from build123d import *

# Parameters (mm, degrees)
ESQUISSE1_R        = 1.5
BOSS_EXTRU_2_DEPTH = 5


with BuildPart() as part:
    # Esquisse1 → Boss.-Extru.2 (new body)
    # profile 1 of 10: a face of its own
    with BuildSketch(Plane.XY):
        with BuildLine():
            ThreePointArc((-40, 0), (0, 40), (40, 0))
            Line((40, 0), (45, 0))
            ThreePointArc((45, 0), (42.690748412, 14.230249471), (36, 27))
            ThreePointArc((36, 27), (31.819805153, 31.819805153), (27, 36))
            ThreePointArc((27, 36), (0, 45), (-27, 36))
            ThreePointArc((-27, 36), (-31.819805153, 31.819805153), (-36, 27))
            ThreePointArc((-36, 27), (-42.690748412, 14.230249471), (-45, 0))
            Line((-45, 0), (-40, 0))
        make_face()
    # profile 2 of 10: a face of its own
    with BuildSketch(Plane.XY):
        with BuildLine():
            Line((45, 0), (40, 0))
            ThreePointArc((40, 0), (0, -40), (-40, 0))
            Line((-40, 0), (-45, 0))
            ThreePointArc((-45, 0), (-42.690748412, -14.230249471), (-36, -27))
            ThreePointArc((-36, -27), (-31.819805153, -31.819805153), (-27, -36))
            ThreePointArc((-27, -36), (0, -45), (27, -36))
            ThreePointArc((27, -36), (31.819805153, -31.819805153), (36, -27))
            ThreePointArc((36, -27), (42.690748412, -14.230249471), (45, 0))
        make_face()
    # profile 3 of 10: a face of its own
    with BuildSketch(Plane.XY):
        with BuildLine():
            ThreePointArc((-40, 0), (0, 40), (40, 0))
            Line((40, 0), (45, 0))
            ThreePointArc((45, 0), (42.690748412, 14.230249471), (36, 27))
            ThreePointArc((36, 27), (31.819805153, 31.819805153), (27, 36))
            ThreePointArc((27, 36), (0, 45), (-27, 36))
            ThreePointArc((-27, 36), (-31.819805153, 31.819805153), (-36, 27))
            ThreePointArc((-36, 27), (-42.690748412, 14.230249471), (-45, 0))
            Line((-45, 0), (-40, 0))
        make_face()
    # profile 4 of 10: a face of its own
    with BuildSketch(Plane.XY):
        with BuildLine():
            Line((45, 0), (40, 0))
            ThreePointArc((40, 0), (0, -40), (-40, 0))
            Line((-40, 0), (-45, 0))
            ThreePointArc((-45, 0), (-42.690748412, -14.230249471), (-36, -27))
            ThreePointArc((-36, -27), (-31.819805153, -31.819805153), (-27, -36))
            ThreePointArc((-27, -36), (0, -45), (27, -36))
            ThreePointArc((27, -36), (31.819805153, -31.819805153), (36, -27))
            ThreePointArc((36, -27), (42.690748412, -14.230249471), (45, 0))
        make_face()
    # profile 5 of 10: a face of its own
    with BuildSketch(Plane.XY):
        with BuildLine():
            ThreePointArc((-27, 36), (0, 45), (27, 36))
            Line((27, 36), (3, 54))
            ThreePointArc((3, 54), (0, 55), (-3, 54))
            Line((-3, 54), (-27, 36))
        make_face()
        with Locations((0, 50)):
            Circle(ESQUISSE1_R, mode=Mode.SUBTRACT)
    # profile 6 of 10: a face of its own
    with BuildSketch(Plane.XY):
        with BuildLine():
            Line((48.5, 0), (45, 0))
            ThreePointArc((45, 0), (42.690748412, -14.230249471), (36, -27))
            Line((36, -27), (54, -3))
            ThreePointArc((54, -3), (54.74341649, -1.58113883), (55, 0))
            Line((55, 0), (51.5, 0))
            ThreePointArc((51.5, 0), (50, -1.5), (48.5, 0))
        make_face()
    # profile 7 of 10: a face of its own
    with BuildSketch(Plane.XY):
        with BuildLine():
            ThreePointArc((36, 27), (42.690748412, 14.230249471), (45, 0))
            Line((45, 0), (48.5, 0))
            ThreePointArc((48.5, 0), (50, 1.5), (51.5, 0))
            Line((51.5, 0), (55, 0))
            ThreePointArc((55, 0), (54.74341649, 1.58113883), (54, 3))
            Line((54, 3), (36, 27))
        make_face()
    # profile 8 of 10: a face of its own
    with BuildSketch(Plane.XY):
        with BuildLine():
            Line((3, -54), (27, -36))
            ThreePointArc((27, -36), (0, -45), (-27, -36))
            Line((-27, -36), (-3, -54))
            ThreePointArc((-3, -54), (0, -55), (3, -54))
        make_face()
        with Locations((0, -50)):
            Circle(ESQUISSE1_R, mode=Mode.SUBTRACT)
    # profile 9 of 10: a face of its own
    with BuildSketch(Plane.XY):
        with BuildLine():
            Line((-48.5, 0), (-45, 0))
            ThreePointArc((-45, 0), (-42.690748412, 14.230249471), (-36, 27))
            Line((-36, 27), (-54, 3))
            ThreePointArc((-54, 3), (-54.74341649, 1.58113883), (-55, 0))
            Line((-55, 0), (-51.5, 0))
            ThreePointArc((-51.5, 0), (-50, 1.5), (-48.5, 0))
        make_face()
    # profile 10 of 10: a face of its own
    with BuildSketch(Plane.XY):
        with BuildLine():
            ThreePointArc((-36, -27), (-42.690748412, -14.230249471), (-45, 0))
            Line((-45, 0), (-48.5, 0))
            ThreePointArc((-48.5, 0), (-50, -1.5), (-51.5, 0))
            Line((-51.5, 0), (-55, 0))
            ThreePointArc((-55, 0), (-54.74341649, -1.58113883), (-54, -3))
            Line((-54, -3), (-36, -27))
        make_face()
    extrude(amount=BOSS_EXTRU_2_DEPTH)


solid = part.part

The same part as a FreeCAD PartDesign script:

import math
import FreeCAD as App
import Part
import Sketcher
from FreeCAD import Vector

doc = App.newDocument("Part")
body = doc.addObject("PartDesign::Body", "Body")

# Sketch on XY plane
sketch1 = body.newObject("Sketcher::SketchObject", "Sketch")
sketch1.AttachmentSupport = (doc.getObject("XY_Plane"), [""])
sketch1.MapMode = "FlatFace"
sketch1.addGeometry([
    Part.ArcOfCircle(Part.Circle(Vector(0, 0, 0), Vector(0, 0, 1), 45), math.radians(36.87), math.radians(53.13)),  # 0
    Part.LineSegment(Vector(27, 36, 0), Vector(3, 54, 0)),  # 1
    Part.ArcOfCircle(Part.Circle(Vector(0, 50, 0), Vector(0, 0, 1), 5), math.radians(53), math.radians(127)),  # 2
    Part.LineSegment(Vector(-3, 54, 0), Vector(-27, 36, 0)),  # 3
    Part.ArcOfCircle(Part.Circle(Vector(0, 0, 0), Vector(0, 0, 1), 45), math.radians(126.87), math.radians(143.13)),  # 4
    Part.LineSegment(Vector(-36, 27, 0), Vector(-54, 3, 0)),  # 5
    Part.ArcOfCircle(Part.Circle(Vector(-50, 0, 0), Vector(0, 0, 1), 5), math.radians(143), math.radians(180)),  # 6
    Part.ArcOfCircle(Part.Circle(Vector(-50, 0, 0), Vector(0, 0, 1), 5), math.radians(-180), math.radians(-143)),  # 7
    Part.LineSegment(Vector(-54, -3, 0), Vector(-36, -27, 0)),  # 8
    Part.ArcOfCircle(Part.Circle(Vector(0, 0, 0), Vector(0, 0, 1), 45), math.radians(-143.13), math.radians(-126.87)),  # 9
    Part.LineSegment(Vector(-27, -36, 0), Vector(-3, -54, 0)),  # 10
    Part.ArcOfCircle(Part.Circle(Vector(0, -50, 0), Vector(0, 0, 1), 5), math.radians(-127), math.radians(-53)),  # 11
    Part.LineSegment(Vector(3, -54, 0), Vector(27, -36, 0)),  # 12
    Part.ArcOfCircle(Part.Circle(Vector(0, 0, 0), Vector(0, 0, 1), 45), math.radians(-53.13), math.radians(-36.87)),  # 13
    Part.LineSegment(Vector(36, -27, 0), Vector(54, -3, 0)),  # 14
    Part.ArcOfCircle(Part.Circle(Vector(50, 0, 0), Vector(0, 0, 1), 5), math.radians(-37), math.radians(0)),  # 15
    Part.ArcOfCircle(Part.Circle(Vector(50, 0, 0), Vector(0, 0, 1), 5), math.radians(0), math.radians(37)),  # 16
    Part.LineSegment(Vector(54, 3, 0), Vector(36, 27, 0)),  # 17
    Part.Circle(Vector(0, 0, 0), Vector(0, 0, 1), 40),  # 18
    Part.Circle(Vector(50, 0, 0), Vector(0, 0, 1), 1.5),  # 19
    Part.Circle(Vector(0, 50, 0), Vector(0, 0, 1), 1.5),  # 20
    Part.Circle(Vector(-50, 0, 0), Vector(0, 0, 1), 1.5),  # 21
    Part.Circle(Vector(0, -50, 0), Vector(0, 0, 1), 1.5),  # 22
], False)
sketch1.addConstraint([
    Sketcher.Constraint("Tangent", 0, 2, 1, 1),
    Sketcher.Constraint("Tangent", 1, 2, 2, 1),
    Sketcher.Constraint("Tangent", 2, 2, 3, 1),
    Sketcher.Constraint("Tangent", 3, 2, 4, 1),
    Sketcher.Constraint("Tangent", 4, 2, 5, 1),
    Sketcher.Constraint("Tangent", 5, 2, 6, 1),
    Sketcher.Constraint("Tangent", 6, 2, 7, 1),
    Sketcher.Constraint("Tangent", 7, 2, 8, 1),
    Sketcher.Constraint("Tangent", 8, 2, 9, 1),
    Sketcher.Constraint("Tangent", 9, 2, 10, 1),
    Sketcher.Constraint("Tangent", 10, 2, 11, 1),
    Sketcher.Constraint("Tangent", 11, 2, 12, 1),
    Sketcher.Constraint("Tangent", 12, 2, 13, 1),
    Sketcher.Constraint("Tangent", 13, 2, 14, 1),
    Sketcher.Constraint("Tangent", 14, 2, 15, 1),
    Sketcher.Constraint("Tangent", 15, 2, 16, 1),
    Sketcher.Constraint("Tangent", 16, 2, 17, 1),
    Sketcher.Constraint("Tangent", 17, 2, 0, 1),
    Sketcher.Constraint("Coincident", 0, 3, -1, 1),
    Sketcher.Constraint("Coincident", 4, 3, -1, 1),
    Sketcher.Constraint("Coincident", 9, 3, -1, 1),
    Sketcher.Constraint("Coincident", 13, 3, -1, 1),
    Sketcher.Constraint("Coincident", 18, 3, -1, 1),
    Sketcher.Constraint("Coincident", 19, 3, 15, 3),
    Sketcher.Constraint("Coincident", 20, 3, 2, 3),
    Sketcher.Constraint("Coincident", 21, 3, 6, 3),
    Sketcher.Constraint("Coincident", 22, 3, 11, 3),
    Sketcher.Constraint("Equal", 0, 4),
    Sketcher.Constraint("Equal", 2, 6),
    Sketcher.Constraint("Equal", 6, 7),
    Sketcher.Constraint("Equal", 4, 9),
    Sketcher.Constraint("Equal", 7, 11),
    Sketcher.Constraint("Equal", 9, 13),
    Sketcher.Constraint("Equal", 11, 15),
    Sketcher.Constraint("Equal", 15, 16),
    Sketcher.Constraint("Equal", 19, 20),
    Sketcher.Constraint("Equal", 20, 21),
    Sketcher.Constraint("Equal", 21, 22),
    Sketcher.Constraint("Symmetric", 2, 3, 11, 3, -1, 1),
    Sketcher.Constraint("Symmetric", 6, 3, 15, 3, -1, 1),
    Sketcher.Constraint("PointOnObject", 2, 3, -2),
    Sketcher.Constraint("PointOnObject", 6, 3, -1),
    Sketcher.Constraint("PointOnObject", 6, 2, -1),
    Sketcher.Constraint("PointOnObject", 15, 2, -1),
    Sketcher.Constraint("Perpendicular", 1, 5),
    Sketcher.Constraint("Diameter", 18, 80.0),
    Sketcher.Constraint("Diameter", 19, 3.0),
    Sketcher.Constraint("Radius", 0, 45.0),
    Sketcher.Constraint("Radius", 2, 5.0),
    Sketcher.Constraint("Distance", 1, 30.0),
])
pad1 = body.newObject("PartDesign::Pad", "Pad")
pad1.Profile = sketch1
pad1.Length = 5

doc.recompute()
